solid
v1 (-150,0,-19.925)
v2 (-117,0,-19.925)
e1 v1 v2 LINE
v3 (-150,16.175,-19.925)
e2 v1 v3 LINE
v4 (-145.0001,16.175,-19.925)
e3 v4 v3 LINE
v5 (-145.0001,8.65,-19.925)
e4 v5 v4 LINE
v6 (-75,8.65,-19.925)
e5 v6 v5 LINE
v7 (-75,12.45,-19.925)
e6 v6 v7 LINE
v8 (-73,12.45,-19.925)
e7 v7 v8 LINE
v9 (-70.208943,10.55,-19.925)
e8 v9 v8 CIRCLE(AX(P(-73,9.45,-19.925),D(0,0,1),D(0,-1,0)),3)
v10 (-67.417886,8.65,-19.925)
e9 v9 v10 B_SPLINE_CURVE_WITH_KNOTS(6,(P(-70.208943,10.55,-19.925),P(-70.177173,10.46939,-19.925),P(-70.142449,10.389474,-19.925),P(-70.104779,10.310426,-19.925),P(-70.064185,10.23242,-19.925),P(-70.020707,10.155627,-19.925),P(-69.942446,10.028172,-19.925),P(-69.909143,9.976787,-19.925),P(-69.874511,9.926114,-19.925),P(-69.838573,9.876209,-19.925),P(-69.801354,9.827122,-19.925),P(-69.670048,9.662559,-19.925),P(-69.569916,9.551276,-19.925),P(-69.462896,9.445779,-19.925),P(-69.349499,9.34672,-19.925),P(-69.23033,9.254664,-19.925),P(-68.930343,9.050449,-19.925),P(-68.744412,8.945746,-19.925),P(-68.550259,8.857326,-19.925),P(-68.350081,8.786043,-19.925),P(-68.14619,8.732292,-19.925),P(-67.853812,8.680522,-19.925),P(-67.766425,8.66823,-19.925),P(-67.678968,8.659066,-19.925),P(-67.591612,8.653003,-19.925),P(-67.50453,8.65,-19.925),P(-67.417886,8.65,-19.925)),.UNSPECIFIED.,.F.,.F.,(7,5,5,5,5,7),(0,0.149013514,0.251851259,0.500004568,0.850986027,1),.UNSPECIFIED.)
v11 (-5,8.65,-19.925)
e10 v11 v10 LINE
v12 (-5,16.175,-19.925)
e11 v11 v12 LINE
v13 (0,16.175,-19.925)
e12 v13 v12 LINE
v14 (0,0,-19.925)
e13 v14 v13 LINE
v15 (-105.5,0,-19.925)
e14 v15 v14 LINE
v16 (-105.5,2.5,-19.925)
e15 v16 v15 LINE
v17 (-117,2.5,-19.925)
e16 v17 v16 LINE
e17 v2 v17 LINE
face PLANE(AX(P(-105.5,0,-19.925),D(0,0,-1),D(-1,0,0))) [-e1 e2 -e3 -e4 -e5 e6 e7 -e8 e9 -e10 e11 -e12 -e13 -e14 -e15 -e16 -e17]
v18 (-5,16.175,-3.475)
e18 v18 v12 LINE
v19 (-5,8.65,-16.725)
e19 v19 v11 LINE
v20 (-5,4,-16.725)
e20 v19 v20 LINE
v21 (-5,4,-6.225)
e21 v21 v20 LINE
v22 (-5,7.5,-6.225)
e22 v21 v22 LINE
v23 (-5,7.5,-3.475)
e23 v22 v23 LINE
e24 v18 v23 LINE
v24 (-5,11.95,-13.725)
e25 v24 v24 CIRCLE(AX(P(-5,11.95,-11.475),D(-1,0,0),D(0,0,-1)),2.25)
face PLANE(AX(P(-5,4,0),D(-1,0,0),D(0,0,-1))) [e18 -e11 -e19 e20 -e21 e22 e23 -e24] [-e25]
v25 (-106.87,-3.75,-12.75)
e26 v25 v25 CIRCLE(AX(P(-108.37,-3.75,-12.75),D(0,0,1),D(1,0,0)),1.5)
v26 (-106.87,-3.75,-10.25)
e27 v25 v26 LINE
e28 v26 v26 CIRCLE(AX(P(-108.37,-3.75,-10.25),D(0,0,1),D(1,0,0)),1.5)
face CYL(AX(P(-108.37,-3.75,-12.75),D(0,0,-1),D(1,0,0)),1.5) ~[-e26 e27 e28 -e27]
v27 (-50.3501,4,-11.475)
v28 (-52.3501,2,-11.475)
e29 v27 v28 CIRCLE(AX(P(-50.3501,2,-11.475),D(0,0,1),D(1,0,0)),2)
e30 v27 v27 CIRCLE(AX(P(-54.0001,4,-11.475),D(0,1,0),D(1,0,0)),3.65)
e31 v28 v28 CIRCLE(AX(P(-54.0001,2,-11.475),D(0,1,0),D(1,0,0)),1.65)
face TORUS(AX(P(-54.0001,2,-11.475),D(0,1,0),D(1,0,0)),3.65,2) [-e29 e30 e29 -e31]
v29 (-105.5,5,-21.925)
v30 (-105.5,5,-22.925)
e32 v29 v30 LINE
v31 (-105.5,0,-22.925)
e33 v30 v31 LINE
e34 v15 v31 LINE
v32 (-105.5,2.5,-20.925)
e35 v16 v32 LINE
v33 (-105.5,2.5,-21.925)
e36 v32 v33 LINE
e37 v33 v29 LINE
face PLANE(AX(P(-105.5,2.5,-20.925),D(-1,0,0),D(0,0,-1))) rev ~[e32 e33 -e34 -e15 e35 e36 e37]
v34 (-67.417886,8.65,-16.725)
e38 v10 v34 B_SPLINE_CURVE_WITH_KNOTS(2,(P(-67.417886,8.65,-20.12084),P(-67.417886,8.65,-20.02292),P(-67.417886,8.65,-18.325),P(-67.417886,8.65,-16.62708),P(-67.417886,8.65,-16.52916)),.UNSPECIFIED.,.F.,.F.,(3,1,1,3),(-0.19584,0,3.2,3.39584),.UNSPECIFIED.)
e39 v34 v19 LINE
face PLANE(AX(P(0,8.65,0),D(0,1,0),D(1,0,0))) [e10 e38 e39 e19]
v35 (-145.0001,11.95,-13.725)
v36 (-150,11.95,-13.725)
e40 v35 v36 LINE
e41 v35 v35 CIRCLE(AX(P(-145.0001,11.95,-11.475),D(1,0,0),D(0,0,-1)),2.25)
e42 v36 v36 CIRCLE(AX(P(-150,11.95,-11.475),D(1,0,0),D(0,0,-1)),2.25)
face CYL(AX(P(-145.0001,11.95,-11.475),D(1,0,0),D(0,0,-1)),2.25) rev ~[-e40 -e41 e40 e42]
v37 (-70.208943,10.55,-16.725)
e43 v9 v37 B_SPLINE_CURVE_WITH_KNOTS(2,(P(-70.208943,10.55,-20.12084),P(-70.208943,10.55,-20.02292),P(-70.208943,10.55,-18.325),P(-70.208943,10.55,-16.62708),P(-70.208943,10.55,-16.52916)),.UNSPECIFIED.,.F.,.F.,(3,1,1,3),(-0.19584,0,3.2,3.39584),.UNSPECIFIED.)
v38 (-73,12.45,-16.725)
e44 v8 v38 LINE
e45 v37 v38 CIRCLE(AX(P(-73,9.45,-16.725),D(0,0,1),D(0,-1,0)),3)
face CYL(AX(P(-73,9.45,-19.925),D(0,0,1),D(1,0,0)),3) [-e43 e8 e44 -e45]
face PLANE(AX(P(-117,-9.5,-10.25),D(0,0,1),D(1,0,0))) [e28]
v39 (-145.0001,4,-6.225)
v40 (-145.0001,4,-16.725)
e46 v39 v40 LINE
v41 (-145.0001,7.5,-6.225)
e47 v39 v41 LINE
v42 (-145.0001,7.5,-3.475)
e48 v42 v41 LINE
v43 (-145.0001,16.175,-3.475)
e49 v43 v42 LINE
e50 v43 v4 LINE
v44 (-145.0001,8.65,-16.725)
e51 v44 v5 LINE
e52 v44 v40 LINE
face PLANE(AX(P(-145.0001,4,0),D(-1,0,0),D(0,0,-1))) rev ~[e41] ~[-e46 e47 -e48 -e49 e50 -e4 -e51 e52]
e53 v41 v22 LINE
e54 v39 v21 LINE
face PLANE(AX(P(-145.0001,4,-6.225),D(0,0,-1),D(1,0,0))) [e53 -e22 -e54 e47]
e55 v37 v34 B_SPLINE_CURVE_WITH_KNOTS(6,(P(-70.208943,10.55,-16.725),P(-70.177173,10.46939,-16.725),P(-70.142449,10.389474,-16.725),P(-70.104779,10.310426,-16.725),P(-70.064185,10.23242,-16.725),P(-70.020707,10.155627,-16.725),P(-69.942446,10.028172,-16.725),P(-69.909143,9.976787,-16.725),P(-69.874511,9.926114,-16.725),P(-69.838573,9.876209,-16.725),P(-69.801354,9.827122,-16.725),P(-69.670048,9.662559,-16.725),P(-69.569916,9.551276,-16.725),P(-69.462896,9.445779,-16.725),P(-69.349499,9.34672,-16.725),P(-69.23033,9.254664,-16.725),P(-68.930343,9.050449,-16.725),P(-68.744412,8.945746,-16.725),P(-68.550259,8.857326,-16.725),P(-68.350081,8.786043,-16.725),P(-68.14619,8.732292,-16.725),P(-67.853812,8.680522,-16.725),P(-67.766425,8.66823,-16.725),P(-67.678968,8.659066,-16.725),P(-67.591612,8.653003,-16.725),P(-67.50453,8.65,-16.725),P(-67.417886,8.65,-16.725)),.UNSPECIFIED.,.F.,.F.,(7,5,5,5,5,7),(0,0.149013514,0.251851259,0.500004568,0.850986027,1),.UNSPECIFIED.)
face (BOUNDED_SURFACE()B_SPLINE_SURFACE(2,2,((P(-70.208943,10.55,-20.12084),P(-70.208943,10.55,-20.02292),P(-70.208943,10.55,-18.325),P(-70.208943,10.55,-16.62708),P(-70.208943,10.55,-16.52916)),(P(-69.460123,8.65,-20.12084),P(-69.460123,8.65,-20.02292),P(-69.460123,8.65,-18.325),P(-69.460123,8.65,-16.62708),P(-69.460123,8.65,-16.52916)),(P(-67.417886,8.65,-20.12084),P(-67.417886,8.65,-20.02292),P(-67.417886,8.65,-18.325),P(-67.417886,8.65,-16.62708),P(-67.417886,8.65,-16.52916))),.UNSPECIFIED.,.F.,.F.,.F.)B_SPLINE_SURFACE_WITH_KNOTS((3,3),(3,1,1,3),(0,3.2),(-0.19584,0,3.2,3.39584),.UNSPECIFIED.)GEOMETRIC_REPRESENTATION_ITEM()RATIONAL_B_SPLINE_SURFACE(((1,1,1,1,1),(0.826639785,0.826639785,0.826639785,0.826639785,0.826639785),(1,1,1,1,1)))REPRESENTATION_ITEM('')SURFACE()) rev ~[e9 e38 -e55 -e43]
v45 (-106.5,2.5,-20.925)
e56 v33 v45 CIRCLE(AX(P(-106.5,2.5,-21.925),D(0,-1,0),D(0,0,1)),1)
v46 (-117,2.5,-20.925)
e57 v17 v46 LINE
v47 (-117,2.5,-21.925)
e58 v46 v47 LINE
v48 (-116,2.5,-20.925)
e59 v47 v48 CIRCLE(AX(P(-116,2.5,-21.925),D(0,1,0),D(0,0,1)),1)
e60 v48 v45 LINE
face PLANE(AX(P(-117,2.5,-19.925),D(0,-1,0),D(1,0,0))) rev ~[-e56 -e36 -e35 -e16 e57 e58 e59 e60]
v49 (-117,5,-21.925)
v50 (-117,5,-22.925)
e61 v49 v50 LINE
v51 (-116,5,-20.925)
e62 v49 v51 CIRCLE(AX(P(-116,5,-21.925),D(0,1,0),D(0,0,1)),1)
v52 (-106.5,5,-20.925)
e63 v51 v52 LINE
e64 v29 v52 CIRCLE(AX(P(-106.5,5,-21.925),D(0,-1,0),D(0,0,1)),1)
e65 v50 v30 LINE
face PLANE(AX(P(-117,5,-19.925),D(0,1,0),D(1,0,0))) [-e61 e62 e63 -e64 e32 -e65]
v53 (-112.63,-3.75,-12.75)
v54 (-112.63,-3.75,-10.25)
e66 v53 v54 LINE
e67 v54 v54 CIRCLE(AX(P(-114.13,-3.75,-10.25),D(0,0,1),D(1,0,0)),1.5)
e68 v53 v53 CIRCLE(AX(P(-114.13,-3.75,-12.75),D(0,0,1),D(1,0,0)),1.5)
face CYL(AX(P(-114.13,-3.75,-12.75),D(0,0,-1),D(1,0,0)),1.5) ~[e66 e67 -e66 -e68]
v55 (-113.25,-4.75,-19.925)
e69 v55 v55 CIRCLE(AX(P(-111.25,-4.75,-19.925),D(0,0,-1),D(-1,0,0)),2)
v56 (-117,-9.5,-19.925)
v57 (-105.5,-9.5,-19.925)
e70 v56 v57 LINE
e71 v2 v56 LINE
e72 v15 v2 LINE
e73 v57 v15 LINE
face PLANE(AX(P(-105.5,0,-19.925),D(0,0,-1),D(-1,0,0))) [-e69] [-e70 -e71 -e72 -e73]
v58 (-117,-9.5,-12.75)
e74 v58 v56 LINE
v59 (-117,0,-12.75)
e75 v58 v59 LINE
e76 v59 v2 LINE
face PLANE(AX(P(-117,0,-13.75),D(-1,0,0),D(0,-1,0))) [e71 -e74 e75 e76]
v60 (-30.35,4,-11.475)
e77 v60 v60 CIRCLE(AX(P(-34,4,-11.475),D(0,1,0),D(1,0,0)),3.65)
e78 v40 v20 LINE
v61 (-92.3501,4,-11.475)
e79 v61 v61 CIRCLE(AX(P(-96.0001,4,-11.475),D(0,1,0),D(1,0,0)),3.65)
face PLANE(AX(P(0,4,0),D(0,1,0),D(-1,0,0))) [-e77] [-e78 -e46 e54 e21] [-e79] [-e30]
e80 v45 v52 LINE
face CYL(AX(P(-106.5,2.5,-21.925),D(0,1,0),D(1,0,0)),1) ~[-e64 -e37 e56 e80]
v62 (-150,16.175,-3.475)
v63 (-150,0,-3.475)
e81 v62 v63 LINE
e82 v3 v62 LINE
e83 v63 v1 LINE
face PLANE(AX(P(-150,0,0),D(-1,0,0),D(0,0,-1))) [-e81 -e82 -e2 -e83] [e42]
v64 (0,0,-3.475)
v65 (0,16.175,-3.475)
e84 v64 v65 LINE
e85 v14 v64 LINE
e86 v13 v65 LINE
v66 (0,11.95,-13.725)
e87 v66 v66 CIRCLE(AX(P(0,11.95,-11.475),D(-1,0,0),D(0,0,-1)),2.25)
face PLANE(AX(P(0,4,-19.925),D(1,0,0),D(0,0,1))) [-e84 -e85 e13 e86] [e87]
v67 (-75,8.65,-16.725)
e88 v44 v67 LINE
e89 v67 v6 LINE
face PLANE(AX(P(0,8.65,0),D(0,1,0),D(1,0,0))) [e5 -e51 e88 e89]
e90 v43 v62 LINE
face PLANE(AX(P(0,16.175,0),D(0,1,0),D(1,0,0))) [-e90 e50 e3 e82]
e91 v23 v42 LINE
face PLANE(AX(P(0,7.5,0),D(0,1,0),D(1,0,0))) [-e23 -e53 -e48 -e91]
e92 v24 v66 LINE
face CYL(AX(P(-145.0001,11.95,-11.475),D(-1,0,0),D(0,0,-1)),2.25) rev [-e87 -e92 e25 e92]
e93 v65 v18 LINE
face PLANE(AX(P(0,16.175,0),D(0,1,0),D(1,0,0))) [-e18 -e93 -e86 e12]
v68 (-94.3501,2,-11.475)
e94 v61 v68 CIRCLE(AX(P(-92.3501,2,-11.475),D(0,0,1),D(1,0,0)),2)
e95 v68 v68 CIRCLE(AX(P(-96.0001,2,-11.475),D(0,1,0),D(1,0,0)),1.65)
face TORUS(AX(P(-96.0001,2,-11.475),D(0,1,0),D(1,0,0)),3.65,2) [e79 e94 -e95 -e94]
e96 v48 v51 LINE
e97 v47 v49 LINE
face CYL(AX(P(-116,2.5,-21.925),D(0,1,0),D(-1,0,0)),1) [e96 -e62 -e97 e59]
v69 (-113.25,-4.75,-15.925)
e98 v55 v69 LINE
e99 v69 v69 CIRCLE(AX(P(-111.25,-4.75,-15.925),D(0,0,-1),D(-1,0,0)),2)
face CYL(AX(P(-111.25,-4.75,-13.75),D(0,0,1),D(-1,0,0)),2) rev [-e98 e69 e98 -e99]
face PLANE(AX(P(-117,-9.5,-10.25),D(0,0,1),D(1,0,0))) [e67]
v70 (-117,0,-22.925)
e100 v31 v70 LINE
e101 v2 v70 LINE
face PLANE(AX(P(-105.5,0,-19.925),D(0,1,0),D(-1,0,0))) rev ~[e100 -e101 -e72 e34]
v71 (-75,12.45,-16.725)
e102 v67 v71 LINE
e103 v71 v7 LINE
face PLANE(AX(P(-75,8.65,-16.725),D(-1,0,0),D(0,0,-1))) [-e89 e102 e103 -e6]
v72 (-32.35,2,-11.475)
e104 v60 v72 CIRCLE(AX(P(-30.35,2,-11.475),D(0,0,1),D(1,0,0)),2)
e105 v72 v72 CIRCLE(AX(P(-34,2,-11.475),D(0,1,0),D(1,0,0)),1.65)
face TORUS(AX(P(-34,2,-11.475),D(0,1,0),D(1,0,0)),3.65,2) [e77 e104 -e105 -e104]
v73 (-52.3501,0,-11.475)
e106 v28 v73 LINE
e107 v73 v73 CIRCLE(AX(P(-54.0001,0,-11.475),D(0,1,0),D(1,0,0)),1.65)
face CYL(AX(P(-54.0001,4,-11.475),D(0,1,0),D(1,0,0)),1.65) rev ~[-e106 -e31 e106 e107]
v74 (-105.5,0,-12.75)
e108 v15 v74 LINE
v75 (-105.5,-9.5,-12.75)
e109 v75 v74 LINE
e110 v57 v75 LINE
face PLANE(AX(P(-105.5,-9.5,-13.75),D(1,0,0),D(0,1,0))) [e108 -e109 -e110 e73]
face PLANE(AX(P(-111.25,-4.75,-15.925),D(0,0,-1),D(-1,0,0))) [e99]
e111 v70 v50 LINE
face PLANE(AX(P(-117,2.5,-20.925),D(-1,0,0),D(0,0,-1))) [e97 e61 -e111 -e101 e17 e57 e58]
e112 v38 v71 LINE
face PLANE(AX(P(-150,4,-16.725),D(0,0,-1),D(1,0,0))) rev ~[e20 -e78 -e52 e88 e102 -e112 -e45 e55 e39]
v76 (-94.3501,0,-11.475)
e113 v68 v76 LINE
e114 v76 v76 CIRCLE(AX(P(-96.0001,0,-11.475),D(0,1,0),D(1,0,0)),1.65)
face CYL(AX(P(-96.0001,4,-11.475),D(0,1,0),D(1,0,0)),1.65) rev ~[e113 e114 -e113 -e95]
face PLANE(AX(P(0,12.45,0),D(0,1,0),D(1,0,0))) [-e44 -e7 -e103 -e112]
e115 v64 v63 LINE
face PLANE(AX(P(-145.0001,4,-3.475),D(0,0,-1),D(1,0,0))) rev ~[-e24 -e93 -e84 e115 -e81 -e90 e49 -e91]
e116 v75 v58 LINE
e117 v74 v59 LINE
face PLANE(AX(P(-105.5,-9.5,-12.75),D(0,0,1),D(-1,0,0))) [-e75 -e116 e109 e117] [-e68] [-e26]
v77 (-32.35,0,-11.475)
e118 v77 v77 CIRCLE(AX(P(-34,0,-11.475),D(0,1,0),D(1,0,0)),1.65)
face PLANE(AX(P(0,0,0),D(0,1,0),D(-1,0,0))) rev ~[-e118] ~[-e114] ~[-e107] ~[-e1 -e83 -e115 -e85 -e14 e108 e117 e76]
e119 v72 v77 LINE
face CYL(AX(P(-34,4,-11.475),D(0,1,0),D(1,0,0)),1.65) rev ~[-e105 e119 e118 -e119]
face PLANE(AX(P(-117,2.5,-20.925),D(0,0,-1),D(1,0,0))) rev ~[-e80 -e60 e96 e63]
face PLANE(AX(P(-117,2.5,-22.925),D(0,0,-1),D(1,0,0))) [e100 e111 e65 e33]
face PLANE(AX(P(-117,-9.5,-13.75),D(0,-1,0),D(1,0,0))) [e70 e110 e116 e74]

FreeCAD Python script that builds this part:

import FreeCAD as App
import Part
import Sketcher
from FreeCAD import Vector
Q = App.Units.Quantity


def edges_at(feature, points):
    """Names of the edges that pass closest to the given points."""
    edges = feature.Shape.Edges
    near = lambda p: min(range(len(edges)), key=lambda i: edges[i].distToShape(Part.Vertex(*p))[0])
    return sorted({f"Edge{near(p) + 1}" for p in points})


def add_polygon(sketch, points):
    """Adds a closed chain of lines whose ends are joined by coincident constraints."""
    first, n = sketch.GeometryCount, len(points)
    for a, b in zip(points, points[1:] + points[:1]):
        sketch.addGeometry(Part.LineSegment(App.Vector(*a, 0), App.Vector(*b, 0)), False)
    for i in range(n):
        sketch.addConstraint(Sketcher.Constraint("Coincident", first + i, 2, first + (i + 1) % n, 1))

doc = App.newDocument("Part")
body = doc.addObject("PartDesign::Body", "Body")

# Sketch on XZ plane
sketch1 = body.newObject("Sketcher::SketchObject", "Sketch")
sketch1.AttachmentSupport = (doc.getObject("XZ_Plane"), [""])
sketch1.MapMode = "FlatFace"
add_polygon(sketch1, [(-150, 0), (0, 0), (0, -20), (-150, -20)])  # lines 0-3
sketch1.addConstraint([
    Sketcher.Constraint("Horizontal", 0),
    Sketcher.Constraint("Vertical", 1),
    Sketcher.Constraint("Horizontal", 2),
    Sketcher.Constraint("Vertical", 3),
    Sketcher.Constraint("Coincident", 0, 2, -1, 1),
    Sketcher.Constraint("DistanceX", 0, 1, 0, 2, Q("150 mm")),
    Sketcher.Constraint("DistanceY", 1, 2, 1, 1, Q("19.925 mm")),
])
pad1 = body.newObject("PartDesign::Pad", "Pad")
pad1.Profile = sketch1
pad1.Length = 4
pad1.Reversed = True

# Sketch on XZ plane
sketch2 = body.newObject("Sketcher::SketchObject", "Sketch001")
sketch2.AttachmentSupport = (doc.getObject("XZ_Plane"), [""])
sketch2.MapMode = "FlatFace"
sketch2.AttachmentOffset = App.Placement(Vector(0, 0, -4), App.Rotation())
add_polygon(sketch2, [(-150, -19.9), (-150, 0), (-145, 0), (-145, -19.9)])  # lines 0-3
add_polygon(sketch2, [(-5, -19.9), (-5, 0), (0, 0), (0, -19.9)])  # lines 4-7
sketch2.addConstraint([
    Sketcher.Constraint("Vertical", 0),
    Sketcher.Constraint("Horizontal", 1),
    Sketcher.Constraint("Vertical", 2),
    Sketcher.Constraint("Horizontal", 3),
    Sketcher.Constraint("Vertical", 4),
    Sketcher.Constraint("Horizontal", 5),
    Sketcher.Constraint("Vertical", 6),
    Sketcher.Constraint("Horizontal", 7),
    Sketcher.Constraint("Coincident", 5, 2, -1, 1),
    Sketcher.Constraint("PointOnObject", 0, 2, -1),
    Sketcher.Constraint("Horizontal", 3, 2, 6, 2),
    Sketcher.Constraint("Equal", 3, 5),
    Sketcher.Constraint("DistanceX", 1, 1, 1, 2, Q("5 mm")),
    Sketcher.Constraint("DistanceX", 0, 2, -1, 1, Q("150 mm")),
    Sketcher.Constraint("DistanceY", 0, 1, 0, 2, Q("19.925 mm")),
])
pad2 = body.newObject("PartDesign::Pad", "Pad001")
pad2.Profile = sketch2
pad2.Length = 12.175
pad2.Reversed = True

# Sketch on XZ plane
sketch3 = body.newObject("Sketcher::SketchObject", "Sketch002")
sketch3.AttachmentSupport = (doc.getObject("XZ_Plane"), [""])
sketch3.MapMode = "FlatFace"
sketch3.AttachmentOffset = App.Placement(Vector(0, 0, -4), App.Rotation())
add_polygon(sketch3, [(0, -16.7), (0, -19.9), (-150, -19.9), (-150, -16.7)])  # lines 0-3
sketch3.addConstraint([
    Sketcher.Constraint("Vertical", 0),
    Sketcher.Constraint("Horizontal", 1),
    Sketcher.Constraint("Vertical", 2),
    Sketcher.Constraint("Horizontal", 3),
    Sketcher.Constraint("PointOnObject", 0, 2, -2),
    Sketcher.Constraint("DistanceY", 0, 2, 0, 1, Q("3.2 mm")),
    Sketcher.Constraint("DistanceX", 1, 2, 1, 1, Q("150 mm")),
    Sketcher.Constraint("DistanceY", 0, 2, -1, 1, Q("19.925 mm")),
])
pad3 = body.newObject("PartDesign::Pad", "Pad002")
pad3.Profile = sketch3
pad3.Length = 4.65
pad3.Reversed = True

# Sketch on XZ plane
sketch4 = body.newObject("Sketcher::SketchObject", "Sketch003")
sketch4.AttachmentSupport = (doc.getObject("XZ_Plane"), [""])
sketch4.MapMode = "FlatFace"
sketch4.AttachmentOffset = App.Placement(Vector(0, 0, -4), App.Rotation())
add_polygon(sketch4, [(-5, -3.5), (-5, -6.2), (-145, -6.2), (-145, -3.5)])  # lines 0-3
sketch4.addConstraint([
    Sketcher.Constraint("Vertical", 0),
    Sketcher.Constraint("Horizontal", 1),
    Sketcher.Constraint("Vertical", 2),
    Sketcher.Constraint("Horizontal", 3),
    Sketcher.Constraint("DistanceY", 0, 2, 0, 1, Q("2.75 mm")),
    Sketcher.Constraint("DistanceX", 1, 2, 1, 1, Q("140 mm")),
    Sketcher.Constraint("DistanceX", 0, 2, -1, 1, Q("5 mm")),
    Sketcher.Constraint("DistanceY", 0, 2, -1, 1, Q("6.225 mm")),
])
pad4 = body.newObject("PartDesign::Pad", "Pad003")
pad4.Profile = sketch4
pad4.Length = 3.5
pad4.Reversed = True

# Sketch on YZ plane
sketch5 = body.newObject("Sketcher::SketchObject", "Sketch004")
sketch5.AttachmentSupport = (doc.getObject("YZ_Plane"), [""])
sketch5.MapMode = "FlatFace"
sketch5.AttachmentOffset = App.Placement(Vector(0, 0, -145.0001), App.Rotation())
sketch5.addGeometry(Part.Circle(Vector(11.9, -11.5, 0), Vector(0, 0, 1), 2.2), False)
sketch5.addConstraint([
    Sketcher.Constraint("Diameter", 0, Q("4.5 mm")),
    Sketcher.Constraint("DistanceX", -1, 1, 0, 3, Q("11.95 mm")),
    Sketcher.Constraint("DistanceY", 0, 3, -1, 1, Q("11.475 mm")),
])
pocket1 = body.newObject("PartDesign::Pocket", "Pocket")
pocket1.Profile = sketch5
pocket1.Type = "ThroughAll"
pocket1.Midplane = True

# Sketch on XZ plane
sketch6 = body.newObject("Sketcher::SketchObject", "Sketch005")
sketch6.AttachmentSupport = (doc.getObject("XZ_Plane"), [""])
sketch6.MapMode = "FlatFace"
sketch6.AttachmentOffset = App.Placement(Vector(0, 0, -4), App.Rotation())
add_polygon(sketch6, [(-155.3, -3.5), (-155.3, 7.4), (-145, 7.4), (-145, 1.2), (1.6, 1.2), (1.6, -3.5)])  # lines 0-5
sketch6.addConstraint([
    Sketcher.Constraint("Vertical", 0),
    Sketcher.Constraint("Horizontal", 1),
    Sketcher.Constraint("Vertical", 2),
    Sketcher.Constraint("Horizontal", 3),
    Sketcher.Constraint("Vertical", 4),
    Sketcher.Constraint("Horizontal", 5),
    Sketcher.Constraint("DistanceX", 1, 2, -1, 1, Q("145 mm")),
    Sketcher.Constraint("DistanceY", 4, 2, 4, 1, Q("4.643 mm")),
    Sketcher.Constraint("DistanceX", 1, 1, 1, 2, Q("10.2912 mm")),
    Sketcher.Constraint("DistanceX", 3, 1, 3, 2, Q("146.5966 mm")),
    Sketcher.Constraint("DistanceY", 0, 1, 0, 2, Q("10.9036 mm")),
    Sketcher.Constraint("DistanceY", -1, 1, 2, 2, Q("1.168 mm")),
])
pocket2 = body.newObject("PartDesign::Pocket", "Pocket001")
pocket2.Profile = sketch6
pocket2.Type = "ThroughAll"
pocket2.Midplane = True

# Sketch on XZ plane
sketch7 = body.newObject("Sketcher::SketchObject", "Sketch006")
sketch7.AttachmentSupport = (doc.getObject("XZ_Plane"), [""])
sketch7.MapMode = "FlatFace"
sketch7.AttachmentOffset = App.Placement(Vector(0, 0, -8.65), App.Rotation())
add_polygon(sketch7, [(-70, -19.9), (-75, -19.9), (-75, -16.7), (-70, -16.7)])  # lines 0-3
sketch7.addConstraint([
    Sketcher.Constraint("Horizontal", 0),
    Sketcher.Constraint("Vertical", 1),
    Sketcher.Constraint("Horizontal", 2),
    Sketcher.Constraint("Vertical", 3),
    Sketcher.Constraint("DistanceX", 0, 2, 0, 1, Q("5 mm")),
    Sketcher.Constraint("DistanceY", 1, 1, 1, 2, Q("3.2 mm")),
    Sketcher.Constraint("DistanceX", 0, 2, -1, 1, Q("75 mm")),
    Sketcher.Constraint("DistanceY", 0, 2, -1, 1, Q("19.925 mm")),
])
pad5 = body.newObject("PartDesign::Pad", "Pad004")
pad5.Profile = sketch7
pad5.Length = 3.8
pad5.Reversed = True
doc.recompute()

fillet = body.newObject("PartDesign::Fillet", "Fillet")
fillet.Base = (pad5, edges_at(pad5, [(-70, 12.45, -18.325)]))
fillet.Radius = 3
doc.recompute()

fillet2 = body.newObject("PartDesign::Fillet", "Fillet001")
fillet2.Base = (fillet, edges_at(fillet, [(-70, 8.65, -18.325)]))
fillet2.Radius = 3

# Sketch on XZ plane
sketch8 = body.newObject("Sketcher::SketchObject", "Sketch007")
sketch8.AttachmentSupport = (doc.getObject("XZ_Plane"), [""])
sketch8.MapMode = "FlatFace"
sketch8.AttachmentOffset = App.Placement(Vector(0, 0, -4), App.Rotation())
sketch8.addGeometry([
    Part.Circle(Vector(-96, -11.5, 0), Vector(0, 0, 1), 1.6),
    Part.Circle(Vector(-54, -11.5, 0), Vector(0, 0, 1), 1.6),
], False)
sketch8.addConstraint([
    Sketcher.Constraint("Equal", 0, 1),
    Sketcher.Constraint("Horizontal", 0, 3, 1, 3),
    Sketcher.Constraint("Diameter", 0, Q("3.3 mm")),
    Sketcher.Constraint("DistanceX", 0, 3, -1, 1, Q("96 mm")),
    Sketcher.Constraint("DistanceX", 1, 3, -1, 1, Q("54 mm")),
    Sketcher.Constraint("DistanceY", 0, 3, -1, 1, Q("11.475 mm")),
])
pocket3 = body.newObject("PartDesign::Pocket", "Pocket002")
pocket3.Profile = sketch8
pocket3.Length = 4
pocket3.Reversed = True

# Sketch on XZ plane
sketch9 = body.newObject("Sketcher::SketchObject", "Sketch008")
sketch9.AttachmentSupport = (doc.getObject("XZ_Plane"), [""])
sketch9.MapMode = "FlatFace"
sketch9.AttachmentOffset = App.Placement(Vector(0, 0, -4), App.Rotation())
sketch9.addGeometry(Part.Circle(Vector(-34, -11.5, 0), Vector(0, 0, 1), 1.6), False)
sketch9.addConstraint([
    Sketcher.Constraint("Diameter", 0, Q("3.3 mm")),
    Sketcher.Constraint("DistanceX", 0, 3, -1, 1, Q("34 mm")),
    Sketcher.Constraint("DistanceY", 0, 3, -1, 1, Q("11.475 mm")),
])
pocket4 = body.newObject("PartDesign::Pocket", "Pocket003")
pocket4.Profile = sketch9
pocket4.Length = 4
pocket4.Reversed = True
doc.recompute()

fillet3 = body.newObject("PartDesign::Fillet", "Fillet002")
fillet3.Base = (pocket4, edges_at(pocket4, [(-55.65, 4, -11.475), (-35.65, 4, -11.475), (-97.65, 4, -11.475)]))
fillet3.Radius = 2

# Sketch on XZ plane
sketch10 = body.newObject("Sketcher::SketchObject", "Sketch009")
sketch10.AttachmentSupport = (doc.getObject("XZ_Plane"), [""])
sketch10.MapMode = "FlatFace"
add_polygon(sketch10, [(-106, -14), (-106, -9), (-117, -9), (-117, -14)])  # lines 0-3
sketch10.addConstraint([
    Sketcher.Constraint("Vertical", 0),
    Sketcher.Constraint("Horizontal", 1),
    Sketcher.Constraint("Vertical", 2),
    Sketcher.Constraint("Horizontal", 3),
    Sketcher.Constraint("DistanceY", 0, 1, 0, 2, Q("5 mm")),
    Sketcher.Constraint("DistanceX", 1, 2, 1, 1, Q("11.5 mm")),
    Sketcher.Constraint("DistanceX", 1, 2, -1, 1, Q("117 mm")),
    Sketcher.Constraint("DistanceY", 0, 2, -1, 1, Q("8.75 mm")),
])
pad6 = body.newObject("PartDesign::Pad", "Pad005")
pad6.Profile = sketch10
pad6.Length = 9.5

# Sketch on XY plane
sketch11 = body.newObject("Sketcher::SketchObject", "Sketch010")
sketch11.AttachmentSupport = (doc.getObject("XY_Plane"), [""])
sketch11.MapMode = "FlatFace"
sketch11.AttachmentOffset = App.Placement(Vector(0, 0, -13.75), App.Rotation())
add_polygon(sketch11, [(-105.5, -9.5), (-117, -9.5), (-117, 0), (-105.5, 0)])  # lines 0-3
sketch11.addGeometry(Part.Circle(Vector(-111.2, -4.8, 0), Vector(0, 0, 1), 2), False)  # 4
sketch11.addConstraint([
    Sketcher.Constraint("Horizontal", 0),
    Sketcher.Constraint("Vertical", 1),
    Sketcher.Constraint("Horizontal", 2),
    Sketcher.Constraint("Vertical", 3),
    Sketcher.Constraint("PointOnObject", 1, 2, -1),
    Sketcher.Constraint("Diameter", 4, Q("4 mm")),
    Sketcher.Constraint("DistanceX", 0, 2, 0, 1, Q("11.5 mm")),
    Sketcher.Constraint("DistanceY", 1, 1, 1, 2, Q("9.5 mm")),
    Sketcher.Constraint("DistanceX", 0, 2, -1, 1, Q("117 mm")),
    Sketcher.Constraint("DistanceX", 4, 3, -1, 1, Q("111.25 mm")),
    Sketcher.Constraint("DistanceY", 4, 3, -1, 1, Q("4.75 mm")),
])
pad7 = body.newObject("PartDesign::Pad", "Pad006")
pad7.Profile = sketch11
pad7.Length = 6.175
pad7.Reversed = True

# Sketch on XY plane
sketch12 = body.newObject("Sketcher::SketchObject", "Sketch011")
sketch12.AttachmentSupport = (doc.getObject("XY_Plane"), [""])
sketch12.MapMode = "FlatFace"
sketch12.AttachmentOffset = App.Placement(Vector(0, 0, -13.75), App.Rotation())
sketch12.addGeometry(Part.Circle(Vector(-111.2, -4.8, 0), Vector(0, 0, 1), 2), False)
sketch12.addConstraint([
    Sketcher.Constraint("Diameter", 0, Q("4 mm")),
    Sketcher.Constraint("DistanceX", 0, 3, -1, 1, Q("111.25 mm")),
    Sketcher.Constraint("DistanceY", 0, 3, -1, 1, Q("4.75 mm")),
])
pocket5 = body.newObject("PartDesign::Pocket", "Pocket004")
pocket5.Profile = sketch12
pocket5.Length = 1.825
pocket5.Reversed = True

# Sketch on XY plane
sketch13 = body.newObject("Sketcher::SketchObject", "Sketch012")
sketch13.AttachmentSupport = (doc.getObject("XY_Plane"), [""])
sketch13.MapMode = "FlatFace"
sketch13.AttachmentOffset = App.Placement(Vector(0, 0, -11.925), App.Rotation())
sketch13.addGeometry(Part.Circle(Vector(-111.2, -4.8, 0), Vector(0, 0, 1), 2), False)
sketch13.addConstraint([
    Sketcher.Constraint("Diameter", 0, Q("4 mm")),
    Sketcher.Constraint("DistanceX", 0, 3, -1, 1, Q("111.25 mm")),
    Sketcher.Constraint("DistanceY", 0, 3, -1, 1, Q("4.75 mm")),
])
pocket6 = body.newObject("PartDesign::Pocket", "Pocket005")
pocket6.Profile = sketch13
pocket6.Length = 0.5
pocket6.Reversed = True

# Sketch on XY plane
sketch14 = body.newObject("Sketcher::SketchObject", "Sketch013")
sketch14.AttachmentSupport = (doc.getObject("XY_Plane"), [""])
sketch14.MapMode = "FlatFace"
sketch14.AttachmentOffset = App.Placement(Vector(0, 0, -11.425), App.Rotation())
sketch14.addGeometry(Part.Circle(Vector(-111.2, -4.8, 0), Vector(0, 0, 1), 2), False)
sketch14.addConstraint([
    Sketcher.Constraint("Diameter", 0, Q("4 mm")),
    Sketcher.Constraint("DistanceX", 0, 3, -1, 1, Q("111.25 mm")),
    Sketcher.Constraint("DistanceY", 0, 3, -1, 1, Q("4.75 mm")),
])
pad8 = body.newObject("PartDesign::Pad", "Pad007")
pad8.Profile = sketch14
pad8.Length = 4.5
pad8.Reversed = True

# Sketch on XZ plane
sketch15 = body.newObject("Sketcher::SketchObject", "Sketch014")
sketch15.AttachmentSupport = (doc.getObject("XZ_Plane"), [""])
sketch15.MapMode = "FlatFace"
sketch15.AttachmentOffset = App.Placement(Vector(0, 0, 9.5), App.Rotation())
add_polygon(sketch15, [(-105.5, -12.8), (-105.5, -8.8), (-117, -8.8), (-117, -12.8)])  # lines 0-3
sketch15.addConstraint([
    Sketcher.Constraint("Vertical", 0),
    Sketcher.Constraint("Horizontal", 1),
    Sketcher.Constraint("Vertical", 2),
    Sketcher.Constraint("Horizontal", 3),
    Sketcher.Constraint("DistanceY", 0, 1, 0, 2, Q("4 mm")),
    Sketcher.Constraint("DistanceX", 1, 2, 1, 1, Q("11.5 mm")),
    Sketcher.Constraint("DistanceX", 1, 2, -1, 1, Q("117 mm")),
    Sketcher.Constraint("DistanceY", 0, 2, -1, 1, Q("8.75 mm")),
])
pocket7 = body.newObject("PartDesign::Pocket", "Pocket006")
pocket7.Profile = sketch15
pocket7.Length = 9.5

# Sketch on XY plane
sketch16 = body.newObject("Sketcher::SketchObject", "Sketch015")
sketch16.AttachmentSupport = (doc.getObject("XY_Plane"), [""])
sketch16.MapMode = "FlatFace"
sketch16.AttachmentOffset = App.Placement(Vector(0, 0, -12.75), App.Rotation())
sketch16.addGeometry([
    Part.Circle(Vector(-108.4, -3.8, 0), Vector(0, 0, 1), 1.5),
    Part.Circle(Vector(-114.1, -3.8, 0), Vector(0, 0, 1), 1.5),
], False)
sketch16.addConstraint([
    Sketcher.Constraint("Equal", 0, 1),
    Sketcher.Constraint("Horizontal", 0, 3, 1, 3),
    Sketcher.Constraint("Diameter", 0, Q("3 mm")),
    Sketcher.Constraint("DistanceX", 0, 3, -1, 1, Q("108.37 mm")),
    Sketcher.Constraint("DistanceY", 0, 3, -1, 1, Q("3.75 mm")),
    Sketcher.Constraint("DistanceX", 1, 3, -1, 1, Q("114.13 mm")),
])
pad9 = body.newObject("PartDesign::Pad", "Pad008")
pad9.Profile = sketch16
pad9.Length = 2.5

# Sketch on XY plane
sketch17 = body.newObject("Sketcher::SketchObject", "Sketch016")
sketch17.AttachmentSupport = (doc.getObject("XY_Plane"), [""])
sketch17.MapMode = "FlatFace"
sketch17.AttachmentOffset = App.Placement(Vector(0, 0, -19.925), App.Rotation())
add_polygon(sketch17, [(-105.5, 2.5), (-105.5, 0), (-117, 0), (-117, 2.5)])  # lines 0-3
sketch17.addConstraint([
    Sketcher.Constraint("Vertical", 0),
    Sketcher.Constraint("Horizontal", 1),
    Sketcher.Constraint("Vertical", 2),
    Sketcher.Constraint("Horizontal", 3),
    Sketcher.Constraint("PointOnObject", 0, 2, -1),
    Sketcher.Constraint("DistanceY", 0, 2, 0, 1, Q("2.5 mm")),
    Sketcher.Constraint("DistanceX", 1, 2, 1, 1, Q("11.5 mm")),
    Sketcher.Constraint("DistanceX", 1, 2, -1, 1, Q("117 mm")),
])
pad10 = body.newObject("PartDesign::Pad", "Pad009")
pad10.Profile = sketch17
pad10.Length = 3
pad10.Reversed = True

# Sketch on XZ plane
sketch18 = body.newObject("Sketcher::SketchObject", "Sketch017")
sketch18.AttachmentSupport = (doc.getObject("XZ_Plane"), [""])
sketch18.MapMode = "FlatFace"
sketch18.AttachmentOffset = App.Placement(Vector(0, 0, -2.5), App.Rotation())
add_polygon(sketch18, [(-105.5, -22.9), (-117, -22.9), (-117, -20.9), (-105.5, -20.9)])  # lines 0-3
sketch18.addConstraint([
    Sketcher.Constraint("Horizontal", 0),
    Sketcher.Constraint("Vertical", 1),
    Sketcher.Constraint("Horizontal", 2),
    Sketcher.Constraint("Vertical", 3),
    Sketcher.Constraint("DistanceY", 1, 1, 1, 2, Q("2 mm")),
    Sketcher.Constraint("DistanceX", 0, 2, 0, 1, Q("11.5 mm")),
    Sketcher.Constraint("DistanceX", 0, 2, -1, 1, Q("117 mm")),
    Sketcher.Constraint("DistanceY", 0, 2, -1, 1, Q("22.925 mm")),
])
pad11 = body.newObject("PartDesign::Pad", "Pad010")
pad11.Profile = sketch18
pad11.Length = 2.5
pad11.Reversed = True
doc.recompute()

fillet4 = body.newObject("PartDesign::Fillet", "Fillet003")
fillet4.Base = (pad11, edges_at(pad11, [(-117, 3.75, -20.925), (-105.5, 3.75, -20.925)]))
fillet4.Radius = 1

doc.recompute()
